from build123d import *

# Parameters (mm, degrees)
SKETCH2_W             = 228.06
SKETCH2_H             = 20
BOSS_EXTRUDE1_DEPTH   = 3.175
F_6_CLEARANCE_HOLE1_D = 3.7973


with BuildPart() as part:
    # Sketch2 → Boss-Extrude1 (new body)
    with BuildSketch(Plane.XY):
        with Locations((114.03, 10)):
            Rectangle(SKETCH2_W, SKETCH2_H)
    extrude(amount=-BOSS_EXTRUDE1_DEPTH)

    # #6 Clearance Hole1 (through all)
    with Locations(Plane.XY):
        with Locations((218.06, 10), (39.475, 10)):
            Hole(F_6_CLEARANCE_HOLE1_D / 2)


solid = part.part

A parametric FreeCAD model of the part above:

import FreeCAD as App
import Part
import Sketcher

V = App.Vector

doc = App.newDocument("Part")
params = doc.addObject("Spreadsheet::Sheet", "Params")
for row, (alias, value) in enumerate([
    ("sketch1_height", "20 mm"),
    ("sketch1_width", "228.06 mm"),
    ("pad1_length", "3.175 mm"),
    ("hole_diameter", "3.7973 mm"),
], start=1):
    params.set(f"A{row}", alias)
    params.set(f"B{row}", "=" + value)
    params.setAlias(f"B{row}", alias)

body = doc.addObject("PartDesign::Body", "Body")

# Sketch on XY plane
sketch1 = body.newObject("Sketcher::SketchObject", "Sketch")
sketch1.AttachmentSupport = (doc.getObject("XY_Plane"), [""])
sketch1.MapMode = "FlatFace"
sketch1.addGeometry([
    Part.LineSegment(V(0, 20, 0), V(0, 0, 0)),
    Part.LineSegment(V(0, 0, 0), V(228.06, 0, 0)),
    Part.LineSegment(V(228.06, 0, 0), V(228.06, 20, 0)),
    Part.LineSegment(V(228.06, 20, 0), V(0, 20, 0)),
], False)
sketch1.addConstraint([
    Sketcher.Constraint("Coincident", 0, 2, 1, 1),
    Sketcher.Constraint("Coincident", 1, 2, 2, 1),
    Sketcher.Constraint("Coincident", 2, 2, 3, 1),
    Sketcher.Constraint("Coincident", 3, 2, 0, 1),
    Sketcher.Constraint("Vertical", 0),
    Sketcher.Constraint("Horizontal", 1),
    Sketcher.Constraint("Vertical", 2),
    Sketcher.Constraint("Horizontal", 3),
    Sketcher.Constraint("Coincident", 0, 2, -1, 1),
    Sketcher.Constraint("DistanceY", 0, 2, 0, 1, 20.0),
    Sketcher.Constraint("DistanceX", 1, 1, 1, 2, 228.06),
])
sketch1.setExpression("Constraints[9]", "Params.sketch1_height")
sketch1.setExpression("Constraints[10]", "Params.sketch1_width")
pad1 = body.newObject("PartDesign::Pad", "Pad")
pad1.Profile = sketch1
pad1.setExpression("Length", "Params.pad1_length")
pad1.Reversed = True

# Sketch on XY plane
sketch2 = body.newObject("Sketcher::SketchObject", "Sketch001")
sketch2.AttachmentSupport = (doc.getObject("XY_Plane"), [""])
sketch2.MapMode = "FlatFace"
sketch2.addGeometry([
    Part.Circle(V(218.06, 10, 0), V(0, 0, 1), 1.89865),
    Part.Circle(V(39.475, 10, 0), V(0, 0, 1), 1.89865),
], False)
sketch2.addConstraint([
    Sketcher.Constraint("Equal", 0, 1),
    Sketcher.Constraint("Horizontal", 0, 3, 1, 3),
    Sketcher.Constraint("DistanceY", -1, 1, 0, 3, 10.0),
    Sketcher.Constraint("Diameter", 0, 3.7973),
    Sketcher.Constraint("DistanceX", -1, 1, 0, 3, 218.06),
    Sketcher.Constraint("DistanceX", -1, 1, 1, 3, 39.475),
])
doc.recompute()
hole = body.newObject("PartDesign::Hole", "Hole")
hole.Profile = sketch2
hole.ThreadType = "None"
hole.setExpression("Diameter", "Params.hole_diameter")
hole.DepthType = "ThroughAll"

doc.recompute()
